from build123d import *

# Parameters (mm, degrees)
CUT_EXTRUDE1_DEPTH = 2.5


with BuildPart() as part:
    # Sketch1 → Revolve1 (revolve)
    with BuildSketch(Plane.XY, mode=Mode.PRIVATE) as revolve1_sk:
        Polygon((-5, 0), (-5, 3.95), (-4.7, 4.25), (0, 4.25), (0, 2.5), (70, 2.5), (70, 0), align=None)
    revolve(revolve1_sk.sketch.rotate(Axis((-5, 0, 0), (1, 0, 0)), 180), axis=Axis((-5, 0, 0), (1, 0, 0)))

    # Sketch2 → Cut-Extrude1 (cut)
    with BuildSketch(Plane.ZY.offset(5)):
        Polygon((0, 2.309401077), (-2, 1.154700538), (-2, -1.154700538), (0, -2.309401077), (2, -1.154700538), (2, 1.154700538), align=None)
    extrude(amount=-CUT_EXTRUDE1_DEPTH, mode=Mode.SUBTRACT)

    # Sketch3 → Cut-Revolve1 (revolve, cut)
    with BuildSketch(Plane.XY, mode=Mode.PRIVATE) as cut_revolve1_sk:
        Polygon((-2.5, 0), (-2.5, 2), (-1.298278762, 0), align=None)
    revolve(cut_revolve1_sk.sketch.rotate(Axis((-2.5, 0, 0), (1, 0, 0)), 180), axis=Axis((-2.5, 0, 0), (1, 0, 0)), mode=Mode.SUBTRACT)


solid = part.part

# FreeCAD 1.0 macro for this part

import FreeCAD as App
import Part
import Sketcher
Q = App.Units.Quantity

doc = App.newDocument("Part")
body = doc.addObject("PartDesign::Body", "Body")

# Sketch on XY plane
sketch1 = body.newObject("Sketcher::SketchObject", "Sketch")
sketch1.AttachmentSupport = (doc.getObject("XY_Plane"), [""])
sketch1.MapMode = "FlatFace"
sketch1.addGeometry([
    Part.LineSegment(App.Vector(-5, 3.95, 0), App.Vector(-5, 0, 0)),  # 0
    Part.LineSegment(App.Vector(-5, 0, 0), App.Vector(70, 0, 0)),  # 1
    Part.LineSegment(App.Vector(70, 0, 0), App.Vector(70, 2.5, 0)),  # 2
    Part.LineSegment(App.Vector(70, 2.5, 0), App.Vector(0, 2.5, 0)),  # 3
    Part.LineSegment(App.Vector(0, 2.5, 0), App.Vector(0, 4.25, 0)),  # 4
    Part.LineSegment(App.Vector(0, 4.25, 0), App.Vector(-4.7, 4.25, 0)),  # 5
    Part.LineSegment(App.Vector(-4.7, 4.25, 0), App.Vector(-5, 3.95, 0)),  # 6
], False)
sketch1.addConstraint([
    Sketcher.Constraint("Coincident", 0, 2, 1, 1),
    Sketcher.Constraint("Coincident", 1, 2, 2, 1),
    Sketcher.Constraint("Coincident", 2, 2, 3, 1),
    Sketcher.Constraint("Coincident", 3, 2, 4, 1),
    Sketcher.Constraint("Coincident", 4, 2, 5, 1),
    Sketcher.Constraint("Coincident", 5, 2, 6, 1),
    Sketcher.Constraint("Coincident", 6, 2, 0, 1),
    Sketcher.Constraint("Vertical", 0),
    Sketcher.Constraint("Horizontal", 1),
    Sketcher.Constraint("Vertical", 2),
    Sketcher.Constraint("Horizontal", 3),
    Sketcher.Constraint("Vertical", 4),
    Sketcher.Constraint("Horizontal", 5),
    Sketcher.Constraint("PointOnObject", 0, 2, -1),
    Sketcher.Constraint("PointOnObject", 3, 2, -2),
    Sketcher.Constraint("DistanceX", 1, 1, 1, 2, 75.0),
    Sketcher.Constraint("DistanceX", 3, 2, 3, 1, 70.0),
    Sketcher.Constraint("Angle", 6, Q("-135 deg")),
    Sketcher.Constraint("DistanceX", 5, 2, 5, 1, 4.7),
    Sketcher.Constraint("DistanceY", 2, 1, 2, 2, 2.5),
    Sketcher.Constraint("DistanceY", 0, 2, 0, 1, 3.95),
])
revolution = body.newObject("PartDesign::Revolution", "Revolution")
revolution.Profile = sketch1
revolution.ReferenceAxis = (sketch1, ["H_Axis"])
revolution.Angle = 360

# Sketch on YZ plane
sketch2 = body.newObject("Sketcher::SketchObject", "Sketch001")
sketch2.AttachmentSupport = (doc.getObject("YZ_Plane"), [""])
sketch2.MapMode = "FlatFace"
sketch2.AttachmentOffset = App.Placement(App.Vector(0, 0, -5), App.Rotation())
sketch2.addGeometry([
    Part.LineSegment(App.Vector(2.309401, 0, 0), App.Vector(1.154701, -2, 0)),  # 0
    Part.LineSegment(App.Vector(1.154701, -2, 0), App.Vector(-1.154701, -2, 0)),  # 1
    Part.LineSegment(App.Vector(-1.154701, -2, 0), App.Vector(-2.309401, 0, 0)),  # 2
    Part.LineSegment(App.Vector(-2.309401, 0, 0), App.Vector(-1.154701, 2, 0)),  # 3
    Part.LineSegment(App.Vector(-1.154701, 2, 0), App.Vector(1.154701, 2, 0)),  # 4
    Part.LineSegment(App.Vector(1.154701, 2, 0), App.Vector(2.309401, 0, 0)),  # 5
], False)
sketch2.addConstraint([
    Sketcher.Constraint("Coincident", 0, 2, 1, 1),
    Sketcher.Constraint("Coincident", 1, 2, 2, 1),
    Sketcher.Constraint("Coincident", 2, 2, 3, 1),
    Sketcher.Constraint("Coincident", 3, 2, 4, 1),
    Sketcher.Constraint("Coincident", 4, 2, 5, 1),
    Sketcher.Constraint("Coincident", 5, 2, 0, 1),
    Sketcher.Constraint("Horizontal", 1),
    Sketcher.Constraint("Horizontal", 4),
    Sketcher.Constraint("Symmetric", 0, 2, 3, 2, -1, 1),
    Sketcher.Constraint("Symmetric", 2, 2, 5, 2, -1, 1),
    Sketcher.Constraint("PointOnObject", 2, 2, -1),
    Sketcher.Constraint("Parallel", 2, 5),
    Sketcher.Constraint("Vertical", 1, 2, 3, 2),
    Sketcher.Constraint("Angle", 0, Q("-120 deg")),
    Sketcher.Constraint("DistanceY", 0, 2, -1, 1, 2.0),
    Sketcher.Constraint("DistanceX", 1, 2, 1, 1, 2.309401),
])
pocket1 = body.newObject("PartDesign::Pocket", "Pocket")
pocket1.Profile = sketch2
pocket1.Length = 2.5
pocket1.Reversed = True

# Sketch on XY plane
sketch3 = body.newObject("Sketcher::SketchObject", "Sketch002")
sketch3.AttachmentSupport = (doc.getObject("XY_Plane"), [""])
sketch3.MapMode = "FlatFace"
sketch3.addGeometry([
    Part.LineSegment(App.Vector(-2.5, 2, 0), App.Vector(-2.5, 0, 0)),
    Part.LineSegment(App.Vector(-2.5, 0, 0), App.Vector(-1.298279, 0, 0)),
    Part.LineSegment(App.Vector(-1.298279, 0, 0), App.Vector(-2.5, 2, 0)),
], False)
sketch3.addConstraint([
    Sketcher.Constraint("Coincident", 0, 2, 1, 1),
    Sketcher.Constraint("Coincident", 1, 2, 2, 1),
    Sketcher.Constraint("Coincident", 2, 2, 0, 1),
    Sketcher.Constraint("Vertical", 0),
    Sketcher.Constraint("Horizontal", 1),
    Sketcher.Constraint("PointOnObject", 0, 2, -1),
    Sketcher.Constraint("DistanceY", 0, 2, 0, 1, 2.0),
    Sketcher.Constraint("Angle", 2, Q("121 deg")),
    Sketcher.Constraint("DistanceX", 0, 2, -1, 1, 2.5),
])
groove = body.newObject("PartDesign::Groove", "Groove")
groove.Profile = sketch3
groove.ReferenceAxis = (sketch3, ["H_Axis"])
groove.Angle = 360

doc.recompute()
